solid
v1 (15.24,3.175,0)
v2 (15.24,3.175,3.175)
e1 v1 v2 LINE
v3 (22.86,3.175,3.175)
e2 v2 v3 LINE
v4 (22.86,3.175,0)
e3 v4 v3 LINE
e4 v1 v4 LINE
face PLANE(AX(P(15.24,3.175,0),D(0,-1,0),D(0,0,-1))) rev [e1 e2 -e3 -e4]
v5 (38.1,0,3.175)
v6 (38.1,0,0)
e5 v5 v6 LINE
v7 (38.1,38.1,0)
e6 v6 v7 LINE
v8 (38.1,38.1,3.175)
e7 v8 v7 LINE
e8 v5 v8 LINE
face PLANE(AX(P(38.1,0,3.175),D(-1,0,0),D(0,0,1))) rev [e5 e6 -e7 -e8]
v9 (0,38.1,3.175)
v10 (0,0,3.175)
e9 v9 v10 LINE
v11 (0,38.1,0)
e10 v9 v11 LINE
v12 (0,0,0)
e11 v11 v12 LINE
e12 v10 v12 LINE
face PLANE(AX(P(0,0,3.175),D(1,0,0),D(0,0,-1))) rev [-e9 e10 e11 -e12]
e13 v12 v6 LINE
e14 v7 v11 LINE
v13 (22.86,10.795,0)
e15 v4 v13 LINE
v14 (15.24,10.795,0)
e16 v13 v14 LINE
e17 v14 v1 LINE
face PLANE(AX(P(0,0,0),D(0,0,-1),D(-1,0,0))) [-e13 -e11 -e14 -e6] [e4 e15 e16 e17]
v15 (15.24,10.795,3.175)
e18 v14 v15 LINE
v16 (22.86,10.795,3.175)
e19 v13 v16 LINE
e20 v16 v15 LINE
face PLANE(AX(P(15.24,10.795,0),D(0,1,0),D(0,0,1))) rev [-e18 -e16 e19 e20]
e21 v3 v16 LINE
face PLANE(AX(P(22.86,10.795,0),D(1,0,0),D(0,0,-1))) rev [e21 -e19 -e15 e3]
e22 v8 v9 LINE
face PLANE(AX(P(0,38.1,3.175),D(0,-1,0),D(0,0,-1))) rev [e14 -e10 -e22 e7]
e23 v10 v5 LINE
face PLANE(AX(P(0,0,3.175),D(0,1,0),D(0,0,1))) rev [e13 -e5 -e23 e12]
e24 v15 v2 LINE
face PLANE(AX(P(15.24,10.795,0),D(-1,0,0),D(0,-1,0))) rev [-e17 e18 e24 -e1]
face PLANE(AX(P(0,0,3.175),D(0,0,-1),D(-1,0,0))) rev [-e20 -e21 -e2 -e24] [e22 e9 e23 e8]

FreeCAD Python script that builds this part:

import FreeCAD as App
import Part
import Sketcher
from FreeCAD import Vector
Q = App.Units.Quantity


def add_polygon(sketch, points):
    """Adds a closed chain of lines whose ends are joined by coincident constraints."""
    first, n = sketch.GeometryCount, len(points)
    for a, b in zip(points, points[1:] + points[:1]):
        sketch.addGeometry(Part.LineSegment(App.Vector(*a, 0), App.Vector(*b, 0)), False)
    for i in range(n):
        sketch.addConstraint(Sketcher.Constraint("Coincident", first + i, 2, first + (i + 1) % n, 1))

doc = App.newDocument("Part")
body = doc.addObject("PartDesign::Body", "Body")

sketch1 = doc.addObject("Sketcher::SketchObject", "Sketch")
body.addObject(sketch1)
sketch1.AttachmentSupport = (doc.XY_Plane, [""])
sketch1.MapMode = "FlatFace"
add_polygon(sketch1, [(0, 38), (0, 0), (38, 0), (38, 38)])
sketch1.addConstraint(Sketcher.Constraint("Vertical", 0))
sketch1.addConstraint(Sketcher.Constraint("Horizontal", 1))
sketch1.addConstraint(Sketcher.Constraint("Vertical", 2))
sketch1.addConstraint(Sketcher.Constraint("Horizontal", 3))
sketch1.addConstraint(Sketcher.Constraint("Coincident", 0, 2, -1, 1))
sketch1.addConstraint(Sketcher.Constraint("Equal", 3, 0))
sketch1.addConstraint(Sketcher.Constraint("DistanceX", 1, 1, 1, 2, Q("1.5 in")))
pad1 = doc.addObject("PartDesign::Pad", "Pad")
body.addObject(pad1)
pad1.Profile = sketch1
pad1.Length = Q("0.125 in")

sketch2 = doc.addObject("Sketcher::SketchObject", "Sketch001")
body.addObject(sketch2)
sketch2.AttachmentSupport = (doc.XY_Plane, [""])
sketch2.MapMode = "FlatFace"
sketch2.AttachmentOffset = App.Placement(Vector(0, 0, 0.125 * 25.4), App.Rotation())
add_polygon(sketch2, [(15, 11), (15, 3), (23, 3), (23, 11)])
sketch2.addConstraint(Sketcher.Constraint("Vertical", 0))
sketch2.addConstraint(Sketcher.Constraint("Horizontal", 1))
sketch2.addConstraint(Sketcher.Constraint("Vertical", 2))
sketch2.addConstraint(Sketcher.Constraint("Horizontal", 3))
sketch2.addConstraint(Sketcher.Constraint("Equal", 3, 0))
sketch2.addConstraint(Sketcher.Constraint("DistanceX", 1, 1, 1, 2, Q("0.3 in")))
sketch2.addConstraint(Sketcher.Constraint("DistanceX", -1, 1, 0, 2, Q("0.6 in")))
sketch2.addConstraint(Sketcher.Constraint("DistanceY", -1, 1, 0, 2, Q("0.125 in")))
pocket1 = doc.addObject("PartDesign::Pocket", "Pocket")
body.addObject(pocket1)
pocket1.Profile = sketch2
pocket1.Type = "ThroughAll"

doc.recompute()
